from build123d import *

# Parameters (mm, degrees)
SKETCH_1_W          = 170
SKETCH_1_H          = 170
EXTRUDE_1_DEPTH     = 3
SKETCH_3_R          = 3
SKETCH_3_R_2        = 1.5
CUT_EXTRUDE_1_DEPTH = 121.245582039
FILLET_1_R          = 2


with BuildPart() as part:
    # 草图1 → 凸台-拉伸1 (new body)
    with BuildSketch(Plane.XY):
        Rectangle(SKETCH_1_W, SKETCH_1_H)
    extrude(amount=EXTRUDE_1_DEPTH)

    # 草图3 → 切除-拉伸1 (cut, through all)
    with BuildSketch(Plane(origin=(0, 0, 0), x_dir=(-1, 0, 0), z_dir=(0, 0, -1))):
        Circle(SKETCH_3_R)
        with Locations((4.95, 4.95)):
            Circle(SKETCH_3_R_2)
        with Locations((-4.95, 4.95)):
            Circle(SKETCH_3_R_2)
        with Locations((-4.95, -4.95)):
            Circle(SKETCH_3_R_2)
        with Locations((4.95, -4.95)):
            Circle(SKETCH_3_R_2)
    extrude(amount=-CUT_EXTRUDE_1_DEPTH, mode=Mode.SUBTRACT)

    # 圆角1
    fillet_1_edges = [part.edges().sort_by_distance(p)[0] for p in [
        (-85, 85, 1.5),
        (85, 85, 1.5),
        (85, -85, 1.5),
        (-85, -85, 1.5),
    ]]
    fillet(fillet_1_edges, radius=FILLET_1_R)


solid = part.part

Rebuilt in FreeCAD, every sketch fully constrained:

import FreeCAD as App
import Part
import Sketcher
from FreeCAD import Vector
Q = App.Units.Quantity


def edges_at(feature, points):
    """Names of the edges that pass closest to the given points."""
    edges = feature.Shape.Edges
    near = lambda p: min(range(len(edges)), key=lambda i: edges[i].distToShape(Part.Vertex(*p))[0])
    return sorted({f"Edge{near(p) + 1}" for p in points})


def add_polygon(sketch, points):
    """Adds a closed chain of lines whose ends are joined by coincident constraints."""
    first, n = sketch.GeometryCount, len(points)
    for a, b in zip(points, points[1:] + points[:1]):
        sketch.addGeometry(Part.LineSegment(App.Vector(*a, 0), App.Vector(*b, 0)), False)
    for i in range(n):
        sketch.addConstraint(Sketcher.Constraint("Coincident", first + i, 2, first + (i + 1) % n, 1))

doc = App.newDocument("Part")
body = doc.addObject("PartDesign::Body", "Body")

sketch1 = body.newObject("Sketcher::SketchObject", "Sketch")
sketch1.AttachmentSupport = (doc.getObject("XY_Plane"), [""])
sketch1.MapMode = "FlatFace"
add_polygon(sketch1, [(-85, 85), (-85, -85), (85, -85), (85, 85)])
sketch1.addConstraint([
    Sketcher.Constraint("Vertical", 0),
    Sketcher.Constraint("Horizontal", 1),
    Sketcher.Constraint("Vertical", 2),
    Sketcher.Constraint("Horizontal", 3),
    Sketcher.Constraint("Symmetric", 0, 2, 2, 2, -1, 1),
    Sketcher.Constraint("Equal", 3, 0),
    Sketcher.Constraint("DistanceX", 1, 1, 1, 2, Q("170 mm")),
])
pad1 = body.newObject("PartDesign::Pad", "Pad")
pad1.Profile = sketch1
pad1.Length = 3

sketch2 = body.newObject("Sketcher::SketchObject", "Sketch001")
sketch2.AttachmentSupport = (doc.getObject("XY_Plane"), [""])
sketch2.MapMode = "FlatFace"
sketch2.addGeometry([
    Part.Circle(Vector(0, 0, 0), Vector(0, 0, 1), 3),
    Part.Circle(Vector(-4.95, 4.95, 0), Vector(0, 0, 1), 1.5),
    Part.Circle(Vector(4.95, 4.95, 0), Vector(0, 0, 1), 1.5),
    Part.Circle(Vector(4.95, -4.95, 0), Vector(0, 0, 1), 1.5),
    Part.Circle(Vector(-4.95, -4.95, 0), Vector(0, 0, 1), 1.5),
], False)
sketch2.addConstraint([
    Sketcher.Constraint("Coincident", 0, 3, -1, 1),
    Sketcher.Constraint("Equal", 1, 2),
    Sketcher.Constraint("Equal", 2, 3),
    Sketcher.Constraint("Equal", 3, 4),
    Sketcher.Constraint("Symmetric", 1, 3, 3, 3, -1, 1),
    Sketcher.Constraint("Symmetric", 2, 3, 4, 3, -1, 1),
    Sketcher.Constraint("Symmetric", 1, 3, 2, 3, -2),
    Sketcher.Constraint("Diameter", 0, Q("6 mm")),
    Sketcher.Constraint("Diameter", 1, Q("3 mm")),
    Sketcher.Constraint("DistanceX", 1, 3, 2, 3, Q("9.9 mm")),
    Sketcher.Constraint("DistanceY", 3, 3, 2, 3, Q("9.9 mm")),
])
pocket1 = body.newObject("PartDesign::Pocket", "Pocket")
pocket1.Profile = sketch2
pocket1.Type = "ThroughAll"
pocket1.Reversed = True
doc.recompute()

fillet = body.newObject("PartDesign::Fillet", "Fillet")
fillet.Base = (pocket1, edges_at(pocket1, [
    (-85, 85, 1.5),
    (85, 85, 1.5),
    (85, -85, 1.5),
    (-85, -85, 1.5),
]))
fillet.Radius = 2

doc.recompute()
